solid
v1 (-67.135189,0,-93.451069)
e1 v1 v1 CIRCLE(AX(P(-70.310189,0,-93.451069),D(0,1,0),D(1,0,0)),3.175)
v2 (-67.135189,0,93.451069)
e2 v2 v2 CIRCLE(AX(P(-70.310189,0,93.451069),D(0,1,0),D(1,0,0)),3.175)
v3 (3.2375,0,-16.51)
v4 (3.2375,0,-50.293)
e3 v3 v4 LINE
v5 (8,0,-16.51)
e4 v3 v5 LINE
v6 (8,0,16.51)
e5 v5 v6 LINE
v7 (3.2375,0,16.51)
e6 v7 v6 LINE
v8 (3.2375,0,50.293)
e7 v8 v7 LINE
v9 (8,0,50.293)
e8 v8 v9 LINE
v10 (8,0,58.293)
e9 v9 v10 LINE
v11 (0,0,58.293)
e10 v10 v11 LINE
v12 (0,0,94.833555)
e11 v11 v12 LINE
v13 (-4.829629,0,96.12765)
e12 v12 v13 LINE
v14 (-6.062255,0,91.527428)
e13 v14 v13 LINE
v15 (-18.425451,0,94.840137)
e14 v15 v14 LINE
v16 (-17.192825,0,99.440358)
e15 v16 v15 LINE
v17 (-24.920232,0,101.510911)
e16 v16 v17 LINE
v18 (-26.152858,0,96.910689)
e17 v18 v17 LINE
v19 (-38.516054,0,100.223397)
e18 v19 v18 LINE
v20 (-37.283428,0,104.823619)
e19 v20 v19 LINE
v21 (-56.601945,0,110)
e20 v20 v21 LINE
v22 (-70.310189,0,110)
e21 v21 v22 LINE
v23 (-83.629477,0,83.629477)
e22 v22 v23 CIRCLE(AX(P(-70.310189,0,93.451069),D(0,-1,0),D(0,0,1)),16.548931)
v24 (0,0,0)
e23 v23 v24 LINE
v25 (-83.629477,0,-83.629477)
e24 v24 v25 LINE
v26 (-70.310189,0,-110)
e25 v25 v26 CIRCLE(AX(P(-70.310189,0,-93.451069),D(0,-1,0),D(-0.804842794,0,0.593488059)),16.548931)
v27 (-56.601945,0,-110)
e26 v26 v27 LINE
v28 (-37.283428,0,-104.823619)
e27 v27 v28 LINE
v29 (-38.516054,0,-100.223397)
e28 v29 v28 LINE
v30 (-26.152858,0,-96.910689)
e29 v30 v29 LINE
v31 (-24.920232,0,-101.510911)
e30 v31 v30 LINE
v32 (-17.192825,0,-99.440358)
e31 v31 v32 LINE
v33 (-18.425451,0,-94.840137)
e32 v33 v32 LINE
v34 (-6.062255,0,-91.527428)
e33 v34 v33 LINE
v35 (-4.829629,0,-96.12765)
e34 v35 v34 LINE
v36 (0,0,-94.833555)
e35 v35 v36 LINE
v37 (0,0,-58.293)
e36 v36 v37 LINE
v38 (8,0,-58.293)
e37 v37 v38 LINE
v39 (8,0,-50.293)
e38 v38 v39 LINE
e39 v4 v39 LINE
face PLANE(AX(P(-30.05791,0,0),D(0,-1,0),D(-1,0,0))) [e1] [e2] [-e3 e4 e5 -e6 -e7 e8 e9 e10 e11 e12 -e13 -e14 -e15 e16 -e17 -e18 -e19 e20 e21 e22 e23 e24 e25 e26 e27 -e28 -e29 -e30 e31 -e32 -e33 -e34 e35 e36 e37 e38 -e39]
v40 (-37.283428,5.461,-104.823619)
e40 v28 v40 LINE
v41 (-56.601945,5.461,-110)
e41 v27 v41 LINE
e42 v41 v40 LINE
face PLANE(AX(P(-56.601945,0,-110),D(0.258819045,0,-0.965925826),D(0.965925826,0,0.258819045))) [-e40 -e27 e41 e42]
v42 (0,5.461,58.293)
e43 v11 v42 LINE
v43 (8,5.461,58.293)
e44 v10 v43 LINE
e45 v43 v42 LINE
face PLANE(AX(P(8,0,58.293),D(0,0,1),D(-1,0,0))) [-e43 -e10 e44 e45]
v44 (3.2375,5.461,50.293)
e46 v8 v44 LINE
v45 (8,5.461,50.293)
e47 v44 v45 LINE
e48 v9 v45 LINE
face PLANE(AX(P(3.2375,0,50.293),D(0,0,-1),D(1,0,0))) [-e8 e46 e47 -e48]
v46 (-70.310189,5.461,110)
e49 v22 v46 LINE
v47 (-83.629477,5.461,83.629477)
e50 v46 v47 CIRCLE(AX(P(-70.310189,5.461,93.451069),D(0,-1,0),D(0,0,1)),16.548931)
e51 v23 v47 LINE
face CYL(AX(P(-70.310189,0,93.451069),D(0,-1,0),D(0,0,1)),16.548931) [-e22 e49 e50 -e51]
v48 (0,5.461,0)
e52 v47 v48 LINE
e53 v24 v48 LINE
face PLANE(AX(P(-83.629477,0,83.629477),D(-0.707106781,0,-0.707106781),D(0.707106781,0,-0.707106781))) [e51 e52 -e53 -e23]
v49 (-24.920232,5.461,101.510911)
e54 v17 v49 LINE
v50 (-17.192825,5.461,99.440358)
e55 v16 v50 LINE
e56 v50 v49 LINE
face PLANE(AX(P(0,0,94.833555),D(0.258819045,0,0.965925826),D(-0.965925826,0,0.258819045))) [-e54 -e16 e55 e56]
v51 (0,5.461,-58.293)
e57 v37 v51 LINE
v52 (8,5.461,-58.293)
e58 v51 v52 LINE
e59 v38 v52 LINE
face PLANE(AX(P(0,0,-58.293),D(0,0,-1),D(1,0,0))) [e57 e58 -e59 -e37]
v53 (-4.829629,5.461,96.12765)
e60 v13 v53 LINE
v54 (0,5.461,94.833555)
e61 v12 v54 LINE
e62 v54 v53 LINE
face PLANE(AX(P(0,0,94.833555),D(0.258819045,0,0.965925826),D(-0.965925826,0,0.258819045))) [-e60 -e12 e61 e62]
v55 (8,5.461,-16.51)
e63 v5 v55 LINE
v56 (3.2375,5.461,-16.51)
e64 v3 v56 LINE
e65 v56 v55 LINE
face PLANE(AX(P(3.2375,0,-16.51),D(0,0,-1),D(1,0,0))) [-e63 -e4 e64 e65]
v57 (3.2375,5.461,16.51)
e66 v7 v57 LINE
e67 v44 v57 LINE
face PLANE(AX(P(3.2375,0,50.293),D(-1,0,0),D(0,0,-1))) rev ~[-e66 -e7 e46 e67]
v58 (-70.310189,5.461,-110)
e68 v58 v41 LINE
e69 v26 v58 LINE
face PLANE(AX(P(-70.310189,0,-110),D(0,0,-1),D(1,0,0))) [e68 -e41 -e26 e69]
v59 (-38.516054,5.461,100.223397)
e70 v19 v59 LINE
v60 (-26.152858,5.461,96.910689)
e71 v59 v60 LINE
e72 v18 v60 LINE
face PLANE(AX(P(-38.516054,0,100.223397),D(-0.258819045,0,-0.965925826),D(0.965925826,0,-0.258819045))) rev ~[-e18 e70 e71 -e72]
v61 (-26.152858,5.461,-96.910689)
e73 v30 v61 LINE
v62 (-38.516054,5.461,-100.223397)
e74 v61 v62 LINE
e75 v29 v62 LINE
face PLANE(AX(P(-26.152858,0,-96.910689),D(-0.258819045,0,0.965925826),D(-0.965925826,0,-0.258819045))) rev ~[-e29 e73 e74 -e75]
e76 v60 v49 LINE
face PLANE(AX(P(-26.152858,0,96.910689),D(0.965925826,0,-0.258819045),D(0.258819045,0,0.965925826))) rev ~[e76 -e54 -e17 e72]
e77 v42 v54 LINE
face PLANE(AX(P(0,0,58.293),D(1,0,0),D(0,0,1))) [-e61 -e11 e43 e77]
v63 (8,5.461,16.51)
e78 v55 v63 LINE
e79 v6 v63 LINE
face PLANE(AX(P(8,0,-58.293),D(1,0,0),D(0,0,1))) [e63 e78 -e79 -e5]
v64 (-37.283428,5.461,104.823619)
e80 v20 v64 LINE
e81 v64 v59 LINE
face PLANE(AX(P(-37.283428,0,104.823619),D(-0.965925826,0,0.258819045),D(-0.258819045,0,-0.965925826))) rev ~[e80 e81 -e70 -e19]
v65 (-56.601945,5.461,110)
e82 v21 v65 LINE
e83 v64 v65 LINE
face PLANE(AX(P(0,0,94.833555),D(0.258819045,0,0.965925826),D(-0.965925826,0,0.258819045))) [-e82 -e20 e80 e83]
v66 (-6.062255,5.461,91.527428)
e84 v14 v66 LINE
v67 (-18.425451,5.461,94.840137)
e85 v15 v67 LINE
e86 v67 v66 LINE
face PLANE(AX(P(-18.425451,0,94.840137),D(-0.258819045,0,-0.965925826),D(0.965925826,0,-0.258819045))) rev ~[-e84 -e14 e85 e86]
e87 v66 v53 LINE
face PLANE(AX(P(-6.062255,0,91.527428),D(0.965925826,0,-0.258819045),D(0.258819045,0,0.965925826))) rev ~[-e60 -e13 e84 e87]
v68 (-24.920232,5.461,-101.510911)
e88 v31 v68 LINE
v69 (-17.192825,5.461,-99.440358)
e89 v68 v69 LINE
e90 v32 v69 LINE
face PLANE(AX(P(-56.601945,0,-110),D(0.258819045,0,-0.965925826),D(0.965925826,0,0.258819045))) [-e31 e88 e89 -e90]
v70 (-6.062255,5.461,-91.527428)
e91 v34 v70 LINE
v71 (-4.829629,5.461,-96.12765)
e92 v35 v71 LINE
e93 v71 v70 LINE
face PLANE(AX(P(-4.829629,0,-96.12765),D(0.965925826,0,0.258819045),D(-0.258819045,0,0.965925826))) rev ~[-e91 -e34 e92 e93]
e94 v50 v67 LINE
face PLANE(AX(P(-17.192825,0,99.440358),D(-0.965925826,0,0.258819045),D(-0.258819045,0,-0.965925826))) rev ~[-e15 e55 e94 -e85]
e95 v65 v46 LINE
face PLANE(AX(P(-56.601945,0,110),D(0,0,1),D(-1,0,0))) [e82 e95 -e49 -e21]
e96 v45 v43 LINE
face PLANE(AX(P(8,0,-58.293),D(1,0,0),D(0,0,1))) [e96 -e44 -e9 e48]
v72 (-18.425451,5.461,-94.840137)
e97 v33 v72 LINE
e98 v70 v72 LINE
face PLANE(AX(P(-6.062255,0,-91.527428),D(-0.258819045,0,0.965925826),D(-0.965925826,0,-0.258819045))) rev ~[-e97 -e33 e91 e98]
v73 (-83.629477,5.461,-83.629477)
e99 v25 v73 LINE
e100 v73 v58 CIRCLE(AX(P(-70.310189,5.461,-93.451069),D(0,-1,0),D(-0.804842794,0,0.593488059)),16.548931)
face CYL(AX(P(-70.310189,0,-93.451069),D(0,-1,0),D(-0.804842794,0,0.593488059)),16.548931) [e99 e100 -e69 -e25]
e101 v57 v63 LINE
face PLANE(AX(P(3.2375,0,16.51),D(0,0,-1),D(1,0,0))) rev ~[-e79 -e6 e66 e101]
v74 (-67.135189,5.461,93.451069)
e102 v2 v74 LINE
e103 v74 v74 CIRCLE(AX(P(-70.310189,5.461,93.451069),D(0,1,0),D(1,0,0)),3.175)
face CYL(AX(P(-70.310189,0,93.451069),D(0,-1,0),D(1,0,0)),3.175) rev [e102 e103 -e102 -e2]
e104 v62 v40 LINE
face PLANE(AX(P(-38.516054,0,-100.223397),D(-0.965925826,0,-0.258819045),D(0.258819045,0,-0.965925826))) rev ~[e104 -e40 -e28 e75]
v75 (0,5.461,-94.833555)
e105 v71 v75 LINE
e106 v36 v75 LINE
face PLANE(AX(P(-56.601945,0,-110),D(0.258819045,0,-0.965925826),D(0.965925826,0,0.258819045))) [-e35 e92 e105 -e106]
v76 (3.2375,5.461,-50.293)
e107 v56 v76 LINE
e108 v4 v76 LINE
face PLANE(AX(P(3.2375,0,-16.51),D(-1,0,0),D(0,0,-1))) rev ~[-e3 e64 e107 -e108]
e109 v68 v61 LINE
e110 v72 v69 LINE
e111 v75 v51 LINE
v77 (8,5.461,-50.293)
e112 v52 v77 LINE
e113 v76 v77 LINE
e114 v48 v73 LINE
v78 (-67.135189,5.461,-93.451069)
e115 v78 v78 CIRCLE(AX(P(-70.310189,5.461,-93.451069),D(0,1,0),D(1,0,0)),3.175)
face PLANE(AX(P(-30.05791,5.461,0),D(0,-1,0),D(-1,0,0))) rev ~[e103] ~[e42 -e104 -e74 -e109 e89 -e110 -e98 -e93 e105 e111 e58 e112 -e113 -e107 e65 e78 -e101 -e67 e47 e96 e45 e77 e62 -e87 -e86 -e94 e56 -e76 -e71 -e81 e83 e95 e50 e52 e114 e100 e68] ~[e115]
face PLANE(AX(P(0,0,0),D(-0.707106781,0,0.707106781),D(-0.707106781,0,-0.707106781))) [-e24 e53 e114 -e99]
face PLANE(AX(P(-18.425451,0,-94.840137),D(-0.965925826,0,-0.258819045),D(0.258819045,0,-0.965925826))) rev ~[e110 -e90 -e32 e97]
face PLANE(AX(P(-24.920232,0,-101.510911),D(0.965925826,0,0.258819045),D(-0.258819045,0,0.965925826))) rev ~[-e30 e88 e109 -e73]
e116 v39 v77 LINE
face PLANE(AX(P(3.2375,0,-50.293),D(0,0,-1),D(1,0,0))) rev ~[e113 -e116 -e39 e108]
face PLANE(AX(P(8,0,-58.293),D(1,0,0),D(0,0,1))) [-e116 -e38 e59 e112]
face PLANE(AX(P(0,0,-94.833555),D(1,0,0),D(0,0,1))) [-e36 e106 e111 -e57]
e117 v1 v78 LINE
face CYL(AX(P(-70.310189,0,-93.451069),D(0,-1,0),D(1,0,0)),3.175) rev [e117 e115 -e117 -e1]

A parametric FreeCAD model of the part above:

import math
import FreeCAD as App
import Part
import Sketcher
Q = App.Units.Quantity

doc = App.newDocument("Part")
params = doc.addObject("Spreadsheet::Sheet", "Params")
for row, (alias, value) in enumerate([
    ("sketch1_diameter", "0.25 in"),
    ("sketch1_height", "4.59 in"),
    ("pad1_length", "0.215 in"),
    ("sketch2_width", "0.1875 in"),
    ("sketch2_length", "0.1875 in"),
    ("pocket1_length", "10 mm"),
], start=1):
    params.set(f"A{row}", alias)
    params.set(f"B{row}", "=" + value)
    params.setAlias(f"B{row}", alias)

body = doc.addObject("PartDesign::Body", "Body")

sketch1 = body.newObject("Sketcher::SketchObject", "Sketch")
sketch1.AttachmentSupport = (doc.getObject("XZ_Plane"), [""])
sketch1.MapMode = "FlatFace"
sketch1.addGeometry(Part.LineSegment(App.Vector(-83.6, -83.6, 0), App.Vector(0, 0, 0)), False)
sketch1.addGeometry(Part.LineSegment(App.Vector(0, 0, 0), App.Vector(-83.6, 83.6, 0)), False)
sketch1.addGeometry(Part.ArcOfCircle(Part.Circle(App.Vector(-70.3, 93.5, 0), App.Vector(0, 0, 1), 16.5), math.radians(90), math.radians(216)), False)
sketch1.addGeometry(Part.LineSegment(App.Vector(-70.3, 110, 0), App.Vector(-56.6, 110, 0)), False)
sketch1.addGeometry(Part.LineSegment(App.Vector(-56.6, 110, 0), App.Vector(0, 94.8, 0)), False)
sketch1.addGeometry(Part.LineSegment(App.Vector(0, 94.8, 0), App.Vector(0, 58.3, 0)), False)
sketch1.addGeometry(Part.LineSegment(App.Vector(0, 58.3, 0), App.Vector(8, 58.3, 0)), False)
sketch1.addGeometry(Part.LineSegment(App.Vector(8, 58.3, 0), App.Vector(8, -58.3, 0)), False)
sketch1.addGeometry(Part.LineSegment(App.Vector(8, -58.3, 0), App.Vector(0, -58.3, 0)), False)
sketch1.addGeometry(Part.LineSegment(App.Vector(0, -58.3, 0), App.Vector(0, -94.8, 0)), False)
sketch1.addGeometry(Part.LineSegment(App.Vector(0, -94.8, 0), App.Vector(-56.6, -110, 0)), False)
sketch1.addGeometry(Part.LineSegment(App.Vector(-56.6, -110, 0), App.Vector(-70.3, -110, 0)), False)
sketch1.addGeometry(Part.ArcOfCircle(Part.Circle(App.Vector(-70.3, -93.5, 0), App.Vector(0, 0, 1), 16.5), math.radians(144), math.radians(270)), False)
sketch1.addGeometry(Part.Circle(App.Vector(-70.3, 93.5, 0), App.Vector(0, 0, 1), 3.2), False)
sketch1.addGeometry(Part.Circle(App.Vector(-70.3, -93.5, 0), App.Vector(0, 0, 1), 3.2), False)
sketch1.addConstraint(Sketcher.Constraint("Coincident", 0, 2, 1, 1))
sketch1.addConstraint(Sketcher.Constraint("Coincident", 1, 2, 2, 2))
sketch1.addConstraint(Sketcher.Constraint("Tangent", 2, 1, 3, 1))
sketch1.addConstraint(Sketcher.Constraint("Coincident", 3, 2, 4, 1))
sketch1.addConstraint(Sketcher.Constraint("Coincident", 4, 2, 5, 1))
sketch1.addConstraint(Sketcher.Constraint("Coincident", 5, 2, 6, 1))
sketch1.addConstraint(Sketcher.Constraint("Coincident", 6, 2, 7, 1))
sketch1.addConstraint(Sketcher.Constraint("Coincident", 7, 2, 8, 1))
sketch1.addConstraint(Sketcher.Constraint("Coincident", 8, 2, 9, 1))
sketch1.addConstraint(Sketcher.Constraint("Coincident", 9, 2, 10, 1))
sketch1.addConstraint(Sketcher.Constraint("Coincident", 10, 2, 11, 1))
sketch1.addConstraint(Sketcher.Constraint("Tangent", 11, 2, 12, 2))
sketch1.addConstraint(Sketcher.Constraint("Coincident", 12, 1, 0, 1))
sketch1.addConstraint(Sketcher.Constraint("Horizontal", 3))
sketch1.addConstraint(Sketcher.Constraint("Vertical", 5))
sketch1.addConstraint(Sketcher.Constraint("Horizontal", 6))
sketch1.addConstraint(Sketcher.Constraint("Vertical", 7))
sketch1.addConstraint(Sketcher.Constraint("Horizontal", 8))
sketch1.addConstraint(Sketcher.Constraint("Vertical", 9))
sketch1.addConstraint(Sketcher.Constraint("Horizontal", 11))
sketch1.addConstraint(Sketcher.Constraint("Coincident", 0, 2, -1, 1))
sketch1.addConstraint(Sketcher.Constraint("Coincident", 13, 3, 2, 3))
sketch1.addConstraint(Sketcher.Constraint("Coincident", 14, 3, 12, 3))
sketch1.addConstraint(Sketcher.Constraint("Equal", 2, 12))
sketch1.addConstraint(Sketcher.Constraint("Equal", 13, 14))
sketch1.addConstraint(Sketcher.Constraint("Symmetric", 5, 2, 8, 2, -1, 1))
sketch1.addConstraint(Sketcher.Constraint("Symmetric", 2, 3, 12, 3, -1))
sketch1.addConstraint(Sketcher.Constraint("Symmetric", 4, 2, 9, 2, -1))
sketch1.addConstraint(Sketcher.Constraint("Perpendicular", 0, 1))
sketch1.addConstraint(Sketcher.Constraint("Vertical", 3, 2, 10, 2))
sketch1.addConstraint(Sketcher.Constraint("Vertical", 1, 2, 12, 1))
sketch1.addConstraint(Sketcher.Constraint("Diameter", 13, Q("0.25 in")))
sketch1.addConstraint(Sketcher.Constraint("Angle", 4, Q("-15 deg")))
sketch1.addConstraint(Sketcher.Constraint("DistanceY", 7, 2, 7, 1, Q("4.59 in")))
sketch1.addConstraint(Sketcher.Constraint("Radius", 2, 16.548931))
sketch1.addConstraint(Sketcher.Constraint("DistanceX", 6, 1, 6, 2, 8.0))
sketch1.addConstraint(Sketcher.Constraint("DistanceY", -1, 1, 2, 1, 110.0))
sketch1.addConstraint(Sketcher.Constraint("Distance", 0, 118.26994))
sketch1.addConstraint(Sketcher.Constraint("DistanceX", 3, 1, 3, 2, 13.708244))
sketch1.setExpression("Constraints[31]", "Params.sketch1_diameter")
sketch1.setExpression("Constraints[33]", "Params.sketch1_height")
pad1 = body.newObject("PartDesign::Pad", "Pad")
pad1.Profile = sketch1
pad1.setExpression("Length", "Params.pad1_length")
pad1.Reversed = True

sketch2 = body.newObject("Sketcher::SketchObject", "Sketch001")
sketch2.AttachmentSupport = (doc.getObject("XZ_Plane"), [""])
sketch2.MapMode = "FlatFace"
sketch2.addGeometry(Part.LineSegment(App.Vector(-24.9, -101.5, 0), App.Vector(-37.3, -104.8, 0)), False)
sketch2.addGeometry(Part.LineSegment(App.Vector(-37.3, -104.8, 0), App.Vector(-38.5, -100.2, 0)), False)
sketch2.addGeometry(Part.LineSegment(App.Vector(-38.5, -100.2, 0), App.Vector(-26.2, -96.9, 0)), False)
sketch2.addGeometry(Part.LineSegment(App.Vector(-26.2, -96.9, 0), App.Vector(-24.9, -101.5, 0)), False)
sketch2.addGeometry(Part.LineSegment(App.Vector(-4.8, -96.1, 0), App.Vector(-17.2, -99.4, 0)), False)
sketch2.addGeometry(Part.LineSegment(App.Vector(-17.2, -99.4, 0), App.Vector(-18.4, -94.8, 0)), False)
sketch2.addGeometry(Part.LineSegment(App.Vector(-18.4, -94.8, 0), App.Vector(-6.1, -91.5, 0)), False)
sketch2.addGeometry(Part.LineSegment(App.Vector(-6.1, -91.5, 0), App.Vector(-4.8, -96.1, 0)), False)
sketch2.addGeometry(Part.LineSegment(App.Vector(-6.1, 91.5, 0), App.Vector(-18.4, 94.8, 0)), False)
sketch2.addGeometry(Part.LineSegment(App.Vector(-18.4, 94.8, 0), App.Vector(-17.2, 99.4, 0)), False)
sketch2.addGeometry(Part.LineSegment(App.Vector(-17.2, 99.4, 0), App.Vector(-4.8, 96.1, 0)), False)
sketch2.addGeometry(Part.LineSegment(App.Vector(-4.8, 96.1, 0), App.Vector(-6.1, 91.5, 0)), False)
sketch2.addGeometry(Part.LineSegment(App.Vector(-26.2, 96.9, 0), App.Vector(-38.5, 100.2, 0)), False)
sketch2.addGeometry(Part.LineSegment(App.Vector(-38.5, 100.2, 0), App.Vector(-37.3, 104.8, 0)), False)
sketch2.addGeometry(Part.LineSegment(App.Vector(-37.3, 104.8, 0), App.Vector(-24.9, 101.5, 0)), False)
sketch2.addGeometry(Part.LineSegment(App.Vector(-24.9, 101.5, 0), App.Vector(-26.2, 96.9, 0)), False)
sketch2.addGeometry(Part.LineSegment(App.Vector(3.2, -50.3, 0), App.Vector(3.2, -16.5, 0)), False)
sketch2.addGeometry(Part.LineSegment(App.Vector(3.2, -16.5, 0), App.Vector(8, -16.5, 0)), False)
sketch2.addGeometry(Part.LineSegment(App.Vector(8, -16.5, 0), App.Vector(8, -50.3, 0)), False)
sketch2.addGeometry(Part.LineSegment(App.Vector(8, -50.3, 0), App.Vector(3.2, -50.3, 0)), False)
sketch2.addGeometry(Part.LineSegment(App.Vector(3.2, 16.5, 0), App.Vector(3.2, 50.3, 0)), False)
sketch2.addGeometry(Part.LineSegment(App.Vector(3.2, 50.3, 0), App.Vector(8, 50.3, 0)), False)
sketch2.addGeometry(Part.LineSegment(App.Vector(8, 50.3, 0), App.Vector(8, 16.5, 0)), False)
sketch2.addGeometry(Part.LineSegment(App.Vector(8, 16.5, 0), App.Vector(3.2, 16.5, 0)), False)
sketch2.addConstraint(Sketcher.Constraint("Coincident", 0, 2, 1, 1))
sketch2.addConstraint(Sketcher.Constraint("Coincident", 1, 2, 2, 1))
sketch2.addConstraint(Sketcher.Constraint("Coincident", 2, 2, 3, 1))
sketch2.addConstraint(Sketcher.Constraint("Coincident", 3, 2, 0, 1))
sketch2.addConstraint(Sketcher.Constraint("Coincident", 4, 2, 5, 1))
sketch2.addConstraint(Sketcher.Constraint("Coincident", 5, 2, 6, 1))
sketch2.addConstraint(Sketcher.Constraint("Coincident", 6, 2, 7, 1))
sketch2.addConstraint(Sketcher.Constraint("Coincident", 7, 2, 4, 1))
sketch2.addConstraint(Sketcher.Constraint("Coincident", 8, 2, 9, 1))
sketch2.addConstraint(Sketcher.Constraint("Coincident", 9, 2, 10, 1))
sketch2.addConstraint(Sketcher.Constraint("Coincident", 10, 2, 11, 1))
sketch2.addConstraint(Sketcher.Constraint("Coincident", 11, 2, 8, 1))
sketch2.addConstraint(Sketcher.Constraint("Coincident", 12, 2, 13, 1))
sketch2.addConstraint(Sketcher.Constraint("Coincident", 13, 2, 14, 1))
sketch2.addConstraint(Sketcher.Constraint("Coincident", 14, 2, 15, 1))
sketch2.addConstraint(Sketcher.Constraint("Coincident", 15, 2, 12, 1))
sketch2.addConstraint(Sketcher.Constraint("Coincident", 16, 2, 17, 1))
sketch2.addConstraint(Sketcher.Constraint("Coincident", 17, 2, 18, 1))
sketch2.addConstraint(Sketcher.Constraint("Coincident", 18, 2, 19, 1))
sketch2.addConstraint(Sketcher.Constraint("Coincident", 19, 2, 16, 1))
sketch2.addConstraint(Sketcher.Constraint("Coincident", 20, 2, 21, 1))
sketch2.addConstraint(Sketcher.Constraint("Coincident", 21, 2, 22, 1))
sketch2.addConstraint(Sketcher.Constraint("Coincident", 22, 2, 23, 1))
sketch2.addConstraint(Sketcher.Constraint("Coincident", 23, 2, 20, 1))
sketch2.addConstraint(Sketcher.Constraint("Vertical", 16))
sketch2.addConstraint(Sketcher.Constraint("Horizontal", 17))
sketch2.addConstraint(Sketcher.Constraint("Vertical", 18))
sketch2.addConstraint(Sketcher.Constraint("Horizontal", 19))
sketch2.addConstraint(Sketcher.Constraint("Vertical", 20))
sketch2.addConstraint(Sketcher.Constraint("Horizontal", 21))
sketch2.addConstraint(Sketcher.Constraint("Vertical", 22))
sketch2.addConstraint(Sketcher.Constraint("Horizontal", 23))
sketch2.addConstraint(Sketcher.Constraint("Symmetric", 5, 2, 8, 2, -1))
sketch2.addConstraint(Sketcher.Constraint("Symmetric", 4, 2, 9, 2, -1))
sketch2.addConstraint(Sketcher.Constraint("Symmetric", 7, 2, 10, 2, -1))
sketch2.addConstraint(Sketcher.Constraint("Symmetric", 6, 2, 11, 2, -1))
sketch2.addConstraint(Sketcher.Constraint("Symmetric", 1, 2, 12, 2, -1))
sketch2.addConstraint(Sketcher.Constraint("Symmetric", 0, 2, 13, 2, -1))
sketch2.addConstraint(Sketcher.Constraint("Symmetric", 3, 2, 14, 2, -1))
sketch2.addConstraint(Sketcher.Constraint("Symmetric", 2, 2, 15, 2, -1))
sketch2.addConstraint(Sketcher.Constraint("Symmetric", 19, 2, 20, 2, -1))
sketch2.addConstraint(Sketcher.Constraint("Symmetric", 17, 2, 22, 2, -1))
sketch2.addConstraint(Sketcher.Constraint("Perpendicular", 0, 1))
sketch2.addConstraint(Sketcher.Constraint("Perpendicular", 1, 2))
sketch2.addConstraint(Sketcher.Constraint("Perpendicular", 2, 3))
sketch2.addConstraint(Sketcher.Constraint("Perpendicular", 3, 4))
sketch2.addConstraint(Sketcher.Constraint("Perpendicular", 4, 5))
sketch2.addConstraint(Sketcher.Constraint("Perpendicular", 5, 6))
sketch2.addConstraint(Sketcher.Constraint("Perpendicular", 6, 7))
sketch2.addConstraint(Sketcher.Constraint("Equal", 2, 4))
sketch2.addConstraint(Sketcher.Constraint("Equal", 3, 5))
sketch2.addConstraint(Sketcher.Constraint("Angle", 0, Q("-165 deg")))
sketch2.addConstraint(Sketcher.Constraint("DistanceY", 17, 2, 22, 2, Q("1.3 in")))
sketch2.addConstraint(Sketcher.Constraint("DistanceX", 17, 1, 17, 2, Q("0.1875 in")))
sketch2.addConstraint(Sketcher.Constraint("Distance", 1, Q("0.1875 in")))
sketch2.addConstraint(Sketcher.Constraint("DistanceY", 16, 1, 16, 2, 33.783))
sketch2.addConstraint(Sketcher.Constraint("DistanceX", 3, 2, 5, 2, Q("0.2557 in")))
sketch2.addConstraint(Sketcher.Constraint("DistanceX", -1, 1, 16, 2, 3.2375))
sketch2.addConstraint(Sketcher.Constraint("DistanceX", 1, 2, 6, 2, 32.453799))
sketch2.addConstraint(Sketcher.Constraint("DistanceY", 7, 2, 10, 2, 192.2553))
sketch2.addConstraint(Sketcher.Constraint("DistanceX", 0, 2, -1, 1, 37.283428))
sketch2.addConstraint(Sketcher.Constraint("DistanceY", 0, 2, -1, 1, 104.823619))
sketch2.setExpression("Constraints[53]", "Params.sketch2_width")
sketch2.setExpression("Constraints[54]", "Params.sketch2_length")
pocket1 = body.newObject("PartDesign::Pocket", "Pocket")
pocket1.Profile = sketch2
pocket1.setExpression("Length", "Params.pocket1_length")

doc.recompute()
